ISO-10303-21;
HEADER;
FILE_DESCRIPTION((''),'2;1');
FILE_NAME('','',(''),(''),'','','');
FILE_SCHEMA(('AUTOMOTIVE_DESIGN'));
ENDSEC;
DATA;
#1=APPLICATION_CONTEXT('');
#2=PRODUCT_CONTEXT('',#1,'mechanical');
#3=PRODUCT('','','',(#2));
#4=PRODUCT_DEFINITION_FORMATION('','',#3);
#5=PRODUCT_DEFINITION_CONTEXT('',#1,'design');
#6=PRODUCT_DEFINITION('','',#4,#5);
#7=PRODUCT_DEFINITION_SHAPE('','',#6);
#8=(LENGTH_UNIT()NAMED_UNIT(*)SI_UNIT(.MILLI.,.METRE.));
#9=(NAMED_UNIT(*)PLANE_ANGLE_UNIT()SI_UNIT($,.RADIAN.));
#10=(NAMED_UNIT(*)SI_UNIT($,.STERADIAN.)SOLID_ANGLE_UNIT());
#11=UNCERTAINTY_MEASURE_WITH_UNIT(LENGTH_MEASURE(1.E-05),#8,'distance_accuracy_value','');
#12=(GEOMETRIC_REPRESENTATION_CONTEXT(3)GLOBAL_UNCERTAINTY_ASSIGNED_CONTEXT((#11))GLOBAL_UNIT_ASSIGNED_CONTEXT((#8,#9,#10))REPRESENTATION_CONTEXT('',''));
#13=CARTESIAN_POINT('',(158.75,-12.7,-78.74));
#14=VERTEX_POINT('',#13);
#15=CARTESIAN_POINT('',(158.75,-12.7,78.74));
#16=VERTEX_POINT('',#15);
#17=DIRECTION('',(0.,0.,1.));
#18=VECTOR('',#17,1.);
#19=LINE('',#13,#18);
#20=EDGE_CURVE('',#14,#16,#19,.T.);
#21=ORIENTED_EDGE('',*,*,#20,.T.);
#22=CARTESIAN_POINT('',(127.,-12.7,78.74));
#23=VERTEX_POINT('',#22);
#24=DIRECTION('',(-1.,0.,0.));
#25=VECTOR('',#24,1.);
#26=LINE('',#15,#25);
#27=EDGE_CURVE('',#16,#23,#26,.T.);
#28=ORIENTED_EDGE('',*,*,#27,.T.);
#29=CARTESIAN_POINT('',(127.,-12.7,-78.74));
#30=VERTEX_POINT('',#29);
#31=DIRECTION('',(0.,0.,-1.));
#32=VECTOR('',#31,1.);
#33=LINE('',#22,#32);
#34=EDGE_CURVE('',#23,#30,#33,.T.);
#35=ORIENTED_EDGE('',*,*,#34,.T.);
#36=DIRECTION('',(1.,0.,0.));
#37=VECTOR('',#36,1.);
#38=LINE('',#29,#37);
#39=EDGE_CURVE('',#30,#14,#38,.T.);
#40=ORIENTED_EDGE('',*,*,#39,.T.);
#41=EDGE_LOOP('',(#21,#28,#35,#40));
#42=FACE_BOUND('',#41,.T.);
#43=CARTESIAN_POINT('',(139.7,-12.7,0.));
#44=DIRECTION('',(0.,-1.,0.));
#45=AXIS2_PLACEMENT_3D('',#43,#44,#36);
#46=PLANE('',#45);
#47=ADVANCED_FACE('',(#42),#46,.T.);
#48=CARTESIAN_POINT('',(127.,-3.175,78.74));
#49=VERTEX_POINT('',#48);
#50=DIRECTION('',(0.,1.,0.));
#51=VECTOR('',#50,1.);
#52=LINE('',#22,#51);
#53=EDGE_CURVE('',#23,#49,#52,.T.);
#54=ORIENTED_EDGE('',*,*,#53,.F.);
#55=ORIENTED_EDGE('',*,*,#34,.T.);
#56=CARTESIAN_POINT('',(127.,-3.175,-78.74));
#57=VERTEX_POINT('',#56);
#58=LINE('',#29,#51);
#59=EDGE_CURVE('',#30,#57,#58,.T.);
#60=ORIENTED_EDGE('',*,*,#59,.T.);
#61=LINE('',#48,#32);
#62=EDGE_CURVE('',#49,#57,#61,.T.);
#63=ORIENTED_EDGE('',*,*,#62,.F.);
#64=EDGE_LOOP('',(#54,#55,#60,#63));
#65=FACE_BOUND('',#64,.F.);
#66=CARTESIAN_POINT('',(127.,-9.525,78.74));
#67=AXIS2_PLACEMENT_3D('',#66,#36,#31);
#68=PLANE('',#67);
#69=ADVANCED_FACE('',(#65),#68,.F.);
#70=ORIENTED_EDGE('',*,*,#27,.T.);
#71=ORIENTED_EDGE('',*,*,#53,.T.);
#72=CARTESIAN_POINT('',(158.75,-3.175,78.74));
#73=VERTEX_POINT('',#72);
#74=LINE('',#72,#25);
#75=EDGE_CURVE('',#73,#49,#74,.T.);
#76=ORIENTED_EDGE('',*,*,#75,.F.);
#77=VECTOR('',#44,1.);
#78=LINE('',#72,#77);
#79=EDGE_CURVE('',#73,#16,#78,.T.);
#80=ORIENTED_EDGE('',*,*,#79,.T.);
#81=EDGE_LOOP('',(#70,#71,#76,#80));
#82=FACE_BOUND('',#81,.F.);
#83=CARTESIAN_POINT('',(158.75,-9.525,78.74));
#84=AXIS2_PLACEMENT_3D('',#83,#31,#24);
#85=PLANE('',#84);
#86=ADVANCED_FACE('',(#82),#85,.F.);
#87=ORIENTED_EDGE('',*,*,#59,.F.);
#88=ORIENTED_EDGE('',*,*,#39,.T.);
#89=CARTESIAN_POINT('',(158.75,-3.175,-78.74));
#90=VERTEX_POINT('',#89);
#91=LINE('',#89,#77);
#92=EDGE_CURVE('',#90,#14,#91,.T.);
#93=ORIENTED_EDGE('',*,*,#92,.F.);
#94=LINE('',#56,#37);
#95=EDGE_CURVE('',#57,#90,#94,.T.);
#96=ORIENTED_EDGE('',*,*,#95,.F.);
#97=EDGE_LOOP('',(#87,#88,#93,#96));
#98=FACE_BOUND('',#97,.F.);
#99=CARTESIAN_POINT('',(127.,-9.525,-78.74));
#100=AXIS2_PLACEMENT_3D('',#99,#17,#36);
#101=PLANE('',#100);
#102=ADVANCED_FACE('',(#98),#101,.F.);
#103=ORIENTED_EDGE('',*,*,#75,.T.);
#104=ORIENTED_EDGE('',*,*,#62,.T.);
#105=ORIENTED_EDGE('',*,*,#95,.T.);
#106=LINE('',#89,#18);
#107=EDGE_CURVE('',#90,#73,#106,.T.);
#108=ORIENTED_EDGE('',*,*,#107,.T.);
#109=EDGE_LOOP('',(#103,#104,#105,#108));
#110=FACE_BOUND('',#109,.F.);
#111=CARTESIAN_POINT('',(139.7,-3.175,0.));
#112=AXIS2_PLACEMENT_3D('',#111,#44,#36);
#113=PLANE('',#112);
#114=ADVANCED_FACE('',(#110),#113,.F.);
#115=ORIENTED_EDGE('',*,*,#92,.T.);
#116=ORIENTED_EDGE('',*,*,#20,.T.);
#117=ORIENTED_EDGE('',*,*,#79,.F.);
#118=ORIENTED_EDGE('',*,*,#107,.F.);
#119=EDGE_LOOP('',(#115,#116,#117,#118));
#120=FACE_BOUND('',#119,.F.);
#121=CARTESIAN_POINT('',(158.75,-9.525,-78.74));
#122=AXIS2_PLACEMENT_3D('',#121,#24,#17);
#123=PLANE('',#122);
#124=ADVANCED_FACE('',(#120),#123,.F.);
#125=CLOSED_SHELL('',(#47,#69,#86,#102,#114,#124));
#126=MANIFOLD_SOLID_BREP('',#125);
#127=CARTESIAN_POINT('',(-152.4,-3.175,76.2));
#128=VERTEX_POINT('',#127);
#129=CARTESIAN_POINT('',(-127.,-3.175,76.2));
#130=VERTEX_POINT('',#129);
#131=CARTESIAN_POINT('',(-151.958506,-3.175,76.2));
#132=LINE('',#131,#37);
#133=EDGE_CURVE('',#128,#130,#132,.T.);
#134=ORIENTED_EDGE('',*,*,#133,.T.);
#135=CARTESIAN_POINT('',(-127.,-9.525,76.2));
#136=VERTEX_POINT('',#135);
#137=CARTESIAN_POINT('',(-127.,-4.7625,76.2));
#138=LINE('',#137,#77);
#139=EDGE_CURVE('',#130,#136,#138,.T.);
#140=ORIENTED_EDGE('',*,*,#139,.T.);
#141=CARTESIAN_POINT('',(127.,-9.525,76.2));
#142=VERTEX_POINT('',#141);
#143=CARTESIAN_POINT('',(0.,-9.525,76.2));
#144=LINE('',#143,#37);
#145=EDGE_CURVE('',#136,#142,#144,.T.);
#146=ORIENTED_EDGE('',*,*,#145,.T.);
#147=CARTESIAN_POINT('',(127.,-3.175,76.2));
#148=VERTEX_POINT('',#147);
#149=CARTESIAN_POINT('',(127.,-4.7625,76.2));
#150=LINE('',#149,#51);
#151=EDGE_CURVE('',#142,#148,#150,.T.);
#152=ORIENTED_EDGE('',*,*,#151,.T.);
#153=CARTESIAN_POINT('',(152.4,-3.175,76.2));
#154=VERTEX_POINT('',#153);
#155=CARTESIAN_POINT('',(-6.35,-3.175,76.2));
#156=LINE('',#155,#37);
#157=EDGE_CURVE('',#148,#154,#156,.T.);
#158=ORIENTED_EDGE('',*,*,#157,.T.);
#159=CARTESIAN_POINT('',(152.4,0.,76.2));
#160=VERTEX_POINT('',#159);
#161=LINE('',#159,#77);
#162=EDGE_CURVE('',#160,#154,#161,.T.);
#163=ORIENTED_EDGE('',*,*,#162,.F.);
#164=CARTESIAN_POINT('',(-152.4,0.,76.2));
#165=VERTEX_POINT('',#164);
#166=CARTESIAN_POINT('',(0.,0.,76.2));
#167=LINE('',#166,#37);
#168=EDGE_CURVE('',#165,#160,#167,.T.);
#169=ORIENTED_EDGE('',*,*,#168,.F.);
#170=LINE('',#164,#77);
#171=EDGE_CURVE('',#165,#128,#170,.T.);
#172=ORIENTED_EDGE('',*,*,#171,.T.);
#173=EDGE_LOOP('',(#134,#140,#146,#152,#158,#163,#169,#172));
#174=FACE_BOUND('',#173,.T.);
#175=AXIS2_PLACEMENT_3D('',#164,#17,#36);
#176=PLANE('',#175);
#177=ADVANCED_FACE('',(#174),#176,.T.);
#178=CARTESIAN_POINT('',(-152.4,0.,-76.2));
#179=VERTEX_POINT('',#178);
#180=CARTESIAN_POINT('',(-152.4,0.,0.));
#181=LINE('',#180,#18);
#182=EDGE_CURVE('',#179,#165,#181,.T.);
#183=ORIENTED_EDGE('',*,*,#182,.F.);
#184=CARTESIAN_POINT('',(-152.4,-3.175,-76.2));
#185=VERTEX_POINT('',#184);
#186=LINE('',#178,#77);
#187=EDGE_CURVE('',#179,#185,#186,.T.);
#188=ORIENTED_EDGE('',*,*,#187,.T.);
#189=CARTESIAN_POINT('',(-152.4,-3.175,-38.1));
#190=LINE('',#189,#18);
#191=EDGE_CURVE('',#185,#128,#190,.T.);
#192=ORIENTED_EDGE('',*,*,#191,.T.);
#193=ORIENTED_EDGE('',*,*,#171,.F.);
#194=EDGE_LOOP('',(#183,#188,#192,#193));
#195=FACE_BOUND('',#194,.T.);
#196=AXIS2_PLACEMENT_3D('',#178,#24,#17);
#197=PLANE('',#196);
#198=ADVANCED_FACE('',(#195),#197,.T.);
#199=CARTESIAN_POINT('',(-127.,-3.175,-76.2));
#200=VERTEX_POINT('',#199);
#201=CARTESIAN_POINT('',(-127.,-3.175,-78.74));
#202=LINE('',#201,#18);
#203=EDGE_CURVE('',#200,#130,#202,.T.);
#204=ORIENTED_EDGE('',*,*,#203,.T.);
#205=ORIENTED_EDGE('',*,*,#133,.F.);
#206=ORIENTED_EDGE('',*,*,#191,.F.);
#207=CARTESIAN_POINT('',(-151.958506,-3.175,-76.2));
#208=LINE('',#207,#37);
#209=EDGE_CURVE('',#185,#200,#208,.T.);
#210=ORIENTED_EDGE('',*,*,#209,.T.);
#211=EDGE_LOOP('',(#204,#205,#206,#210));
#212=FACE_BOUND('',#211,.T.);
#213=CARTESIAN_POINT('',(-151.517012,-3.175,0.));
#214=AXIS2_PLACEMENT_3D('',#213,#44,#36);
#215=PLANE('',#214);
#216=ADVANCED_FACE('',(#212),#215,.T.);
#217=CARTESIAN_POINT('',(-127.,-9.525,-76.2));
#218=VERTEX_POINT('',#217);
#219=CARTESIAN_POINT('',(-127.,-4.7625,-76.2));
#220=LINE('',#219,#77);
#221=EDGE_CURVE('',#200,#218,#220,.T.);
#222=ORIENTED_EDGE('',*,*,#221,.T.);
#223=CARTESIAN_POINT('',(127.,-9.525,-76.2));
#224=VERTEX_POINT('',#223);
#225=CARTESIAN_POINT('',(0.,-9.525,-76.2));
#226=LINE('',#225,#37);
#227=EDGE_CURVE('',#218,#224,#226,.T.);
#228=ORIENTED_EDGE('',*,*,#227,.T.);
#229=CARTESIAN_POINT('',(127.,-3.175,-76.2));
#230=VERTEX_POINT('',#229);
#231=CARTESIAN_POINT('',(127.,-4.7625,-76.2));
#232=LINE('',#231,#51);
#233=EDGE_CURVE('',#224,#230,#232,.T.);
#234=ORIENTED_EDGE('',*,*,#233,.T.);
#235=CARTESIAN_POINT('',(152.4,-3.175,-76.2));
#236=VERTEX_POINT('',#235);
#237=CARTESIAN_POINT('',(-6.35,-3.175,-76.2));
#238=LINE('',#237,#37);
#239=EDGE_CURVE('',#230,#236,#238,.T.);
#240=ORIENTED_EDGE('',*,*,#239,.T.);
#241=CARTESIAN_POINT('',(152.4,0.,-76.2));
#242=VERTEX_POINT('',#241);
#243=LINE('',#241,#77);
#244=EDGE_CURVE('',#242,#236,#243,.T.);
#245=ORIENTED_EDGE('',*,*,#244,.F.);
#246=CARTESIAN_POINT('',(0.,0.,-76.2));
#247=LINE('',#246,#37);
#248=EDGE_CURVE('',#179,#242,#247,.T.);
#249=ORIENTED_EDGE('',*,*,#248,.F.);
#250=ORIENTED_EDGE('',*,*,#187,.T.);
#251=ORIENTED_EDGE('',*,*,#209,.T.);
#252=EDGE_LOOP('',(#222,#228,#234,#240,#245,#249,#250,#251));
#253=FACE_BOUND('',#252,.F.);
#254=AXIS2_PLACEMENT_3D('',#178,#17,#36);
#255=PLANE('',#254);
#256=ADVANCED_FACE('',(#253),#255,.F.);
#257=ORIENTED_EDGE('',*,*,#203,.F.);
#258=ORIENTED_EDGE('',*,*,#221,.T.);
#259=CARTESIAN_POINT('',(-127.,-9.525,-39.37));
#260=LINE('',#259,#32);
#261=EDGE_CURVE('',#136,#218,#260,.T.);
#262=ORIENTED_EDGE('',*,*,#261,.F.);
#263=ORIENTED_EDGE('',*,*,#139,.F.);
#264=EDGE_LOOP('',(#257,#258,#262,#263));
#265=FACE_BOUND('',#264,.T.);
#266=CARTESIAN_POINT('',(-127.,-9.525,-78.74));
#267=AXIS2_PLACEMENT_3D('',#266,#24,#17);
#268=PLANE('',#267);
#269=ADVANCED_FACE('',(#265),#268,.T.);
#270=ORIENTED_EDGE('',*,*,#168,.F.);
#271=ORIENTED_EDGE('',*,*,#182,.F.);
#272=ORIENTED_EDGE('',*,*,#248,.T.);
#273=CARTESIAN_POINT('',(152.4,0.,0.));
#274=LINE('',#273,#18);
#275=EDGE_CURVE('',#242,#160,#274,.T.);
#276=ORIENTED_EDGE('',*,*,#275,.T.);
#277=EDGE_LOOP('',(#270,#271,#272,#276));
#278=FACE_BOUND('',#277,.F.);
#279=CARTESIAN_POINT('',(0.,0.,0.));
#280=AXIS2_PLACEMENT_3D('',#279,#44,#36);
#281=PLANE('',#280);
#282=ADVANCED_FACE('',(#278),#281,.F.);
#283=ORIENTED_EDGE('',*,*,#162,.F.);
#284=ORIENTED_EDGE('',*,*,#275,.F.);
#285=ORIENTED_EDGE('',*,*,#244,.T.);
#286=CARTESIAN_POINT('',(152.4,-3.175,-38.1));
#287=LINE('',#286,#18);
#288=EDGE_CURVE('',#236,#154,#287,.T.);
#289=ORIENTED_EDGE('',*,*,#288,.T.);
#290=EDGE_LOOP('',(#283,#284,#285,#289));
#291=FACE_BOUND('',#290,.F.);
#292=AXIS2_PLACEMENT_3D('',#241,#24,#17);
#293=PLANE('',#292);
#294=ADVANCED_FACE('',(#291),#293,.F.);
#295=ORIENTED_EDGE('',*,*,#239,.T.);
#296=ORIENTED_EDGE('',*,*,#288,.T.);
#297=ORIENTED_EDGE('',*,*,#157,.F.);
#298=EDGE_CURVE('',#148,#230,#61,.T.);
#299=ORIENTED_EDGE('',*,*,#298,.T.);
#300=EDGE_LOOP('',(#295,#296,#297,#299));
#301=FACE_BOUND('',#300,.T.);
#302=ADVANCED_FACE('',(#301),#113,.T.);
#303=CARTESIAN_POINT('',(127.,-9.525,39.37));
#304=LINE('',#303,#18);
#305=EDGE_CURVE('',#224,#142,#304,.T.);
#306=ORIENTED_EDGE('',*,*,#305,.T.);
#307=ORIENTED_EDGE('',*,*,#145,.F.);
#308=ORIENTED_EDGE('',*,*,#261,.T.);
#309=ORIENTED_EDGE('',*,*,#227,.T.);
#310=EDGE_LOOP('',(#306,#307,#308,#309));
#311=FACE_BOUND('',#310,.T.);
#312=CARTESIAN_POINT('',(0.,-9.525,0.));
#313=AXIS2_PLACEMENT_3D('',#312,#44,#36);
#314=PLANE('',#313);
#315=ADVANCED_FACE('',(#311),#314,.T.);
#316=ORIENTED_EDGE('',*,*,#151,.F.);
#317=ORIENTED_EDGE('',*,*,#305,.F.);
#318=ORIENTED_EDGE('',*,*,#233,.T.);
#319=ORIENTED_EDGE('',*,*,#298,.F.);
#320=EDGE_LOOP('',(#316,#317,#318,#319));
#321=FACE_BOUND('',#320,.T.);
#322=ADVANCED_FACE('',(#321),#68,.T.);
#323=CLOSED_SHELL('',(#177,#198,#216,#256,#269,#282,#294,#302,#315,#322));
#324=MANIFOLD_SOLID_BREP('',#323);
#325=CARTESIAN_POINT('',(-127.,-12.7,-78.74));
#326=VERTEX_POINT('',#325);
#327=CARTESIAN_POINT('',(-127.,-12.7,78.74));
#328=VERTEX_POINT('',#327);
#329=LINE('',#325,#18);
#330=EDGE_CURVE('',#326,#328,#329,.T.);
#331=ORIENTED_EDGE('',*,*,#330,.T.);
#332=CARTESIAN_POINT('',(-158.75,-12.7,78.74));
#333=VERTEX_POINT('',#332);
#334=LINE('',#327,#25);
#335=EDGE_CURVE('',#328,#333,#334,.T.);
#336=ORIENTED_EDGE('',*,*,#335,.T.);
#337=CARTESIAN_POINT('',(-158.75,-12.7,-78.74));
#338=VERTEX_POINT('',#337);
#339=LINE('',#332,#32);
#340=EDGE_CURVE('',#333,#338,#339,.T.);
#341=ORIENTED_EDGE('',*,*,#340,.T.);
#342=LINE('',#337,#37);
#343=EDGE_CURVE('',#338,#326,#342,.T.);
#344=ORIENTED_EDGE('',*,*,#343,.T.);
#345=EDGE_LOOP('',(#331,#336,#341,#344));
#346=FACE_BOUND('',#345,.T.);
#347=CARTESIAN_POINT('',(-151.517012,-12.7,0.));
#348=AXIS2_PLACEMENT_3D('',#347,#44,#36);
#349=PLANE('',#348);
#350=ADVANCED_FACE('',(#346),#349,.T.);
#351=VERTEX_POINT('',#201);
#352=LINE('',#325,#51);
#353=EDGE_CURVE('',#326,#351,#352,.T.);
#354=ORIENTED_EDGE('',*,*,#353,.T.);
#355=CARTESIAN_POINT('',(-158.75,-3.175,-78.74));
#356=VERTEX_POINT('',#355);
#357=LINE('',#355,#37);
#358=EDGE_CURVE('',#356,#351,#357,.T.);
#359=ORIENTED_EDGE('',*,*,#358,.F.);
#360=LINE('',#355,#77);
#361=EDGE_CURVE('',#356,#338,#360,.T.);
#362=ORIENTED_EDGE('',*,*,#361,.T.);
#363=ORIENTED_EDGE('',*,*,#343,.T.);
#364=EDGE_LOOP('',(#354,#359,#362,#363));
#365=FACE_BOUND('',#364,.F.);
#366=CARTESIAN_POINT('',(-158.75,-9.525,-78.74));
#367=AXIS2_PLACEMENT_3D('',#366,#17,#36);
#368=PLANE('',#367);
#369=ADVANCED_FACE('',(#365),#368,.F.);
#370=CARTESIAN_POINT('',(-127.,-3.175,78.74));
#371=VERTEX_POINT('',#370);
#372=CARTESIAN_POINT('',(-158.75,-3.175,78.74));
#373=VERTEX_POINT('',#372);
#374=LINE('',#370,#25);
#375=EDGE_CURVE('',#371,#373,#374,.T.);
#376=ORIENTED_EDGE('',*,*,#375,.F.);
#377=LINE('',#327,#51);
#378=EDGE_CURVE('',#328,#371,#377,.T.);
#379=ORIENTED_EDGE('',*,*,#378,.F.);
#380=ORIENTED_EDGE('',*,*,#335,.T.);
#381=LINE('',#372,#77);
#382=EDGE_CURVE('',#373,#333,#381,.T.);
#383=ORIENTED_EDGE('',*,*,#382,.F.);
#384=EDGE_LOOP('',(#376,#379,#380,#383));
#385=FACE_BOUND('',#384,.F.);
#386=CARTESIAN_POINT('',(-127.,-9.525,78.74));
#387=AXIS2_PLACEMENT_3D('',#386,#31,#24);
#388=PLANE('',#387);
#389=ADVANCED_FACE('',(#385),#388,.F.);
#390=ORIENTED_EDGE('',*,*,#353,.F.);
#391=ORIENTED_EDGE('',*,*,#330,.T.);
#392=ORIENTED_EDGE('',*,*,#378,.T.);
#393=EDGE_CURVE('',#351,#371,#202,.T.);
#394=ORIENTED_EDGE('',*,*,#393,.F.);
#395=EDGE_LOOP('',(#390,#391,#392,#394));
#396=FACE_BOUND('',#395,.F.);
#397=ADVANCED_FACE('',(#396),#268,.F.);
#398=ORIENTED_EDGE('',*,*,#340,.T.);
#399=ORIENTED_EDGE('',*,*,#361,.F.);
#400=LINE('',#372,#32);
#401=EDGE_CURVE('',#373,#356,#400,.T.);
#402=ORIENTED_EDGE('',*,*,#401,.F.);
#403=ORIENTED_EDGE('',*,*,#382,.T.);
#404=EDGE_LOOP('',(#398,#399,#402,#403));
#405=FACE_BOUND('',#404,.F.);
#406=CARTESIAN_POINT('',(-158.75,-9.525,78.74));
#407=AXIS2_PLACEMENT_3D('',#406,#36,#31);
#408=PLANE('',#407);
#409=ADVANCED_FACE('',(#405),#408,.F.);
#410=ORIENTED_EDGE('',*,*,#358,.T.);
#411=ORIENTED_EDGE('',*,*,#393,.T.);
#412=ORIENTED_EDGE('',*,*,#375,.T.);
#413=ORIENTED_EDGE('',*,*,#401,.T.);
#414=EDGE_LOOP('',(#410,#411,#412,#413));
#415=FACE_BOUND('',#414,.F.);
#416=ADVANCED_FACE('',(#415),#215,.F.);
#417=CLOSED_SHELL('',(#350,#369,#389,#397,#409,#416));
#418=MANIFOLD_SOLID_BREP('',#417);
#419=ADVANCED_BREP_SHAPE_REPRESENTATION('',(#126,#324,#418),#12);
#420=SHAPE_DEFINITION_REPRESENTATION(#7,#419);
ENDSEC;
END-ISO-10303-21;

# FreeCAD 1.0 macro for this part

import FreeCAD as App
import Part
import Sketcher
from FreeCAD import Vector
Q = App.Units.Quantity


def add_polygon(sketch, points):
    """Adds a closed chain of lines whose ends are joined by coincident constraints."""
    first, n = sketch.GeometryCount, len(points)
    for a, b in zip(points, points[1:] + points[:1]):
        sketch.addGeometry(Part.LineSegment(App.Vector(*a, 0), App.Vector(*b, 0)), False)
    for i in range(n):
        sketch.addConstraint(Sketcher.Constraint("Coincident", first + i, 2, first + (i + 1) % n, 1))

doc = App.newDocument("Part")
body = doc.addObject("PartDesign::Body", "Body")

sketch1 = doc.addObject("Sketcher::SketchObject", "Sketch")
body.addObject(sketch1)
sketch1.AttachmentSupport = (doc.XZ_Plane, [""])
sketch1.MapMode = "FlatFace"
add_polygon(sketch1, [(-152, 76), (-152, -76), (152, -76), (152, 76)])
sketch1.addConstraint(Sketcher.Constraint("Vertical", 0))
sketch1.addConstraint(Sketcher.Constraint("Horizontal", 1))
sketch1.addConstraint(Sketcher.Constraint("Vertical", 2))
sketch1.addConstraint(Sketcher.Constraint("Horizontal", 3))
sketch1.addConstraint(Sketcher.Constraint("Symmetric", 0, 2, 2, 2, -1, 1))
sketch1.addConstraint(Sketcher.Constraint("DistanceX", 1, 1, 1, 2, Q("12 in")))
sketch1.addConstraint(Sketcher.Constraint("DistanceY", 0, 2, 0, 1, Q("6 in")))
pad1 = doc.addObject("PartDesign::Pad", "Pad")
body.addObject(pad1)
pad1.Profile = sketch1
pad1.Length = Q("0.375 in")
body2 = doc.addObject("PartDesign::Body", "Body001")

sketch2 = doc.addObject("Sketcher::SketchObject", "Sketch001")
body2.addObject(sketch2)
sketch2.AttachmentSupport = (doc.getObject("XZ_Plane001"), [""])
sketch2.MapMode = "FlatFace"
sketch2.AttachmentOffset = App.Placement(Vector(0, 0, 0.375 * 25.4), App.Rotation())
add_polygon(sketch2, [(-127, 79), (-159, 79), (-159, -79), (-127, -79)])
sketch2.addConstraint(Sketcher.Constraint("Horizontal", 0))
sketch2.addConstraint(Sketcher.Constraint("Vertical", 1))
sketch2.addConstraint(Sketcher.Constraint("Horizontal", 2))
sketch2.addConstraint(Sketcher.Constraint("Vertical", 3))
sketch2.addConstraint(Sketcher.Constraint("DistanceY", 1, 2, 1, 1, Q("6.2 in")))
sketch2.addConstraint(Sketcher.Constraint("DistanceX", 2, 2, -1, 1, Q("5 in")))
sketch2.addConstraint(Sketcher.Constraint("DistanceX", 0, 2, 0, 1, Q("1.25 in")))
sketch2.addConstraint(Sketcher.Constraint("DistanceY", -1, 1, 0, 2, Q("3.1 in")))
pad2 = doc.addObject("PartDesign::Pad", "Pad001")
body2.addObject(pad2)
pad2.Profile = sketch2
pad2.Type = "TwoLengths"
pad2.Length = Q("0.25 in")
pad2.Length2 = Q("0.125 in")
pad2.Reversed = True
body3 = doc.addObject("PartDesign::Body", "Body002")

sketch3 = doc.addObject("Sketcher::SketchObject", "Sketch002")
body3.addObject(sketch3)
sketch3.AttachmentSupport = (doc.getObject("XZ_Plane002"), [""])
sketch3.MapMode = "FlatFace"
sketch3.AttachmentOffset = App.Placement(Vector(0, 0, 0.375 * 25.4), App.Rotation())
add_polygon(sketch3, [(127, -79), (159, -79), (159, 79), (127, 79)])
sketch3.addConstraint(Sketcher.Constraint("Horizontal", 0))
sketch3.addConstraint(Sketcher.Constraint("Vertical", 1))
sketch3.addConstraint(Sketcher.Constraint("Horizontal", 2))
sketch3.addConstraint(Sketcher.Constraint("Vertical", 3))
sketch3.addConstraint(Sketcher.Constraint("DistanceY", 1, 1, 1, 2, Q("6.2 in")))
sketch3.addConstraint(Sketcher.Constraint("DistanceX", -1, 1, 2, 2, Q("5 in")))
sketch3.addConstraint(Sketcher.Constraint("DistanceX", 0, 1, 0, 2, Q("1.25 in")))
sketch3.addConstraint(Sketcher.Constraint("DistanceY", 0, 2, -1, 1, Q("3.1 in")))
pad3 = doc.addObject("PartDesign::Pad", "Pad002")
body3.addObject(pad3)
pad3.Profile = sketch3
pad3.Type = "TwoLengths"
pad3.Length = Q("0.25 in")
pad3.Length2 = Q("0.125 in")
pad3.Reversed = True
doc.recompute()

body4 = doc.addObject("PartDesign::Body", "Body003")
body4.BaseFeature = body2
boolean = doc.addObject("PartDesign::Boolean", "Boolean")
body.addObject(boolean)
boolean.Type = "Cut"
boolean.addObjects([body4])
doc.recompute()

body5 = doc.addObject("PartDesign::Body", "Body004")
body5.BaseFeature = body3
boolean2 = doc.addObject("PartDesign::Boolean", "Boolean001")
body.addObject(boolean2)
boolean2.Type = "Cut"
boolean2.addObjects([body5])
doc.recompute()

doc.recompute()
